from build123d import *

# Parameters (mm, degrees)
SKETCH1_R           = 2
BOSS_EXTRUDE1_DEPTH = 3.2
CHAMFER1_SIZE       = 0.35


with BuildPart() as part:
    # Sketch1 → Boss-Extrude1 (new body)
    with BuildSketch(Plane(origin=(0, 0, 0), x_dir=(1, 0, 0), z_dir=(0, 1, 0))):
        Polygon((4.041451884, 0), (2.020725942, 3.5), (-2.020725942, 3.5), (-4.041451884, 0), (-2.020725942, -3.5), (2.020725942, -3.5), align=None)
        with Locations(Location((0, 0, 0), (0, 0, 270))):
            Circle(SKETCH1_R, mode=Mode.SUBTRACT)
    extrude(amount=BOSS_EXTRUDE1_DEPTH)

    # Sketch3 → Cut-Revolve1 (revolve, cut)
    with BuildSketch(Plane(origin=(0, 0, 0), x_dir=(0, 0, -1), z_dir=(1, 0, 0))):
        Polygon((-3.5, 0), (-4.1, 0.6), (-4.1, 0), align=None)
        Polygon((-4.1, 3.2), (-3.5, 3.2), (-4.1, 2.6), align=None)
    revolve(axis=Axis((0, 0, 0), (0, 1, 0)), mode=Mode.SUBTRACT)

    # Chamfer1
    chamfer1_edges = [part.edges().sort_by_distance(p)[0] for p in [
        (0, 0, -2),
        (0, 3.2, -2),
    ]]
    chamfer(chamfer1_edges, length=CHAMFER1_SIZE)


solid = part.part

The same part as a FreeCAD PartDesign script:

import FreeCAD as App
import Part
import Sketcher
from FreeCAD import Vector
Q = App.Units.Quantity


def edges_at(feature, points):
    """Names of the edges that pass closest to the given points."""
    edges = feature.Shape.Edges
    near = lambda p: min(range(len(edges)), key=lambda i: edges[i].distToShape(Part.Vertex(*p))[0])
    return sorted({f"Edge{near(p) + 1}" for p in points})

doc = App.newDocument("Part")
params = doc.addObject("Spreadsheet::Sheet", "Params")
for row, (alias, value) in enumerate([
    ("sketch1_diameter", "4 mm"),
    ("pad1_length", "3.2 mm"),
    ("sketch2_width", "0.6 mm"),
    ("groove_angle", "360 deg"),
    ("chamfer_size", "0.35 mm"),
], start=1):
    params.set(f"A{row}", alias)
    params.set(f"B{row}", "=" + value)
    params.setAlias(f"B{row}", alias)

body = doc.addObject("PartDesign::Body", "Body")

# Sketch on XZ plane
sketch1 = body.newObject("Sketcher::SketchObject", "Sketch")
sketch1.AttachmentSupport = (doc.getObject("XZ_Plane"), [""])
sketch1.MapMode = "FlatFace"
sketch1.addGeometry([
    Part.LineSegment(Vector(4, 0, 0), Vector(2, -3.5, 0)),  # 0
    Part.LineSegment(Vector(2, -3.5, 0), Vector(-2, -3.5, 0)),  # 1
    Part.LineSegment(Vector(-2, -3.5, 0), Vector(-4, 0, 0)),  # 2
    Part.LineSegment(Vector(-4, 0, 0), Vector(-2, 3.5, 0)),  # 3
    Part.LineSegment(Vector(-2, 3.5, 0), Vector(2, 3.5, 0)),  # 4
    Part.LineSegment(Vector(2, 3.5, 0), Vector(4, 0, 0)),  # 5
    Part.Circle(Vector(0, 0, 0), Vector(0, 0, 1), 2),  # 6
], False)
sketch1.addConstraint([
    Sketcher.Constraint("Coincident", 0, 2, 1, 1),
    Sketcher.Constraint("Coincident", 1, 2, 2, 1),
    Sketcher.Constraint("Coincident", 2, 2, 3, 1),
    Sketcher.Constraint("Coincident", 3, 2, 4, 1),
    Sketcher.Constraint("Coincident", 4, 2, 5, 1),
    Sketcher.Constraint("Coincident", 5, 2, 0, 1),
    Sketcher.Constraint("Horizontal", 1),
    Sketcher.Constraint("Horizontal", 4),
    Sketcher.Constraint("Coincident", 6, 3, -1, 1),
    Sketcher.Constraint("Symmetric", 0, 2, 3, 2, -1, 1),
    Sketcher.Constraint("Symmetric", 2, 2, 5, 2, -1, 1),
    Sketcher.Constraint("PointOnObject", 2, 2, -1),
    Sketcher.Constraint("Parallel", 2, 5),
    Sketcher.Constraint("Vertical", 1, 2, 3, 2),
    Sketcher.Constraint("Diameter", 6, 4.0),
    Sketcher.Constraint("Angle", 0, Q("-120 deg")),
    Sketcher.Constraint("DistanceY", 1, 2, 3, 2, 7.0),
    Sketcher.Constraint("DistanceX", 1, 2, 1, 1, 4.041452),
])
sketch1.setExpression("Constraints[14]", "Params.sketch1_diameter")
pad1 = body.newObject("PartDesign::Pad", "Pad")
pad1.Profile = sketch1
pad1.setExpression("Length", "Params.pad1_length")
pad1.Reversed = True

# Sketch on YZ plane
sketch2 = body.newObject("Sketcher::SketchObject", "Sketch001")
sketch2.AttachmentSupport = (doc.getObject("YZ_Plane"), [""])
sketch2.MapMode = "FlatFace"
sketch2.addGeometry([
    Part.LineSegment(Vector(0, 3.5, 0), Vector(0.6, 4.1, 0)),  # 0
    Part.LineSegment(Vector(0.6, 4.1, 0), Vector(0, 4.1, 0)),  # 1
    Part.LineSegment(Vector(0, 4.1, 0), Vector(0, 3.5, 0)),  # 2
    Part.LineSegment(Vector(3.2, 3.5, 0), Vector(3.2, 4.1, 0)),  # 3
    Part.LineSegment(Vector(3.2, 4.1, 0), Vector(2.6, 4.1, 0)),  # 4
    Part.LineSegment(Vector(2.6, 4.1, 0), Vector(3.2, 3.5, 0)),  # 5
], False)
sketch2.addConstraint([
    Sketcher.Constraint("Coincident", 0, 2, 1, 1),
    Sketcher.Constraint("Coincident", 1, 2, 2, 1),
    Sketcher.Constraint("Coincident", 2, 2, 0, 1),
    Sketcher.Constraint("Coincident", 3, 2, 4, 1),
    Sketcher.Constraint("Coincident", 4, 2, 5, 1),
    Sketcher.Constraint("Coincident", 5, 2, 3, 1),
    Sketcher.Constraint("Horizontal", 1),
    Sketcher.Constraint("Vertical", 2),
    Sketcher.Constraint("Vertical", 3),
    Sketcher.Constraint("Horizontal", 4),
    Sketcher.Constraint("PointOnObject", 1, 2, -2),
    Sketcher.Constraint("Perpendicular", 0, 5),
    Sketcher.Constraint("Horizontal", 1, 2, 3, 2),
    Sketcher.Constraint("Horizontal", 2, 2, 5, 2),
    Sketcher.Constraint("Equal", 1, 4),
    Sketcher.Constraint("DistanceX", 1, 2, 1, 1, 0.6),
    Sketcher.Constraint("DistanceX", 0, 2, 4, 2, 2.0),
    Sketcher.Constraint("DistanceY", -1, 1, 0, 2, 4.1),
])
sketch2.setExpression("Constraints[15]", "Params.sketch2_width")
groove = body.newObject("PartDesign::Groove", "Groove")
groove.Profile = sketch2
groove.ReferenceAxis = (sketch2, ["H_Axis"])
groove.setExpression("Angle", "Params.groove_angle")
doc.recompute()

chamfer = body.newObject("PartDesign::Chamfer", "Chamfer")
chamfer.Base = (groove, edges_at(groove, [(0, 0, -2), (0, 3.2, -2)]))
chamfer.setExpression("Size", "Params.chamfer_size")

doc.recompute()
